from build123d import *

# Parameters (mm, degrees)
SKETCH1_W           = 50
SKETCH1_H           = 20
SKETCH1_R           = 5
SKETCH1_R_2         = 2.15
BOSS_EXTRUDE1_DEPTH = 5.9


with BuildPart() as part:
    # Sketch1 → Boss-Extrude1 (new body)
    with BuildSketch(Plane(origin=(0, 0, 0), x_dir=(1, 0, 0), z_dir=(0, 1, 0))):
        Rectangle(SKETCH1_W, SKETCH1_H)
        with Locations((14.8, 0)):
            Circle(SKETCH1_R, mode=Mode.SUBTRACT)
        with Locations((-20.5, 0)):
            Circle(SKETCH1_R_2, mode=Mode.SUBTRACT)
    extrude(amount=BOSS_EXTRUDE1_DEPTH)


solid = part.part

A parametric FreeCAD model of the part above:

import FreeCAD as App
import Part
import Sketcher
from FreeCAD import Vector

doc = App.newDocument("Part")
body = doc.addObject("PartDesign::Body", "Body")

# Sketch on XZ plane
sketch1 = body.newObject("Sketcher::SketchObject", "Sketch")
sketch1.AttachmentSupport = (doc.getObject("XZ_Plane"), [""])
sketch1.MapMode = "FlatFace"
sketch1.addGeometry([
    Part.LineSegment(Vector(-25, -10, 0), Vector(-25, 10, 0)),  # 0
    Part.LineSegment(Vector(-25, 10, 0), Vector(25, 10, 0)),  # 1
    Part.LineSegment(Vector(25, 10, 0), Vector(25, -10, 0)),  # 2
    Part.LineSegment(Vector(25, -10, 0), Vector(-25, -10, 0)),  # 3
    Part.Circle(Vector(-20.5, 0, 0), Vector(0, 0, 1), 2.15),  # 4
    Part.Circle(Vector(14.8, 0, 0), Vector(0, 0, 1), 5),  # 5
], False)
sketch1.addConstraint([
    Sketcher.Constraint("Coincident", 0, 2, 1, 1),
    Sketcher.Constraint("Coincident", 1, 2, 2, 1),
    Sketcher.Constraint("Coincident", 2, 2, 3, 1),
    Sketcher.Constraint("Coincident", 3, 2, 0, 1),
    Sketcher.Constraint("Vertical", 0),
    Sketcher.Constraint("Horizontal", 1),
    Sketcher.Constraint("Vertical", 2),
    Sketcher.Constraint("Horizontal", 3),
    Sketcher.Constraint("Symmetric", 0, 2, 2, 2, -1, 1),
    Sketcher.Constraint("PointOnObject", 4, 3, -1),
    Sketcher.Constraint("PointOnObject", 5, 3, -1),
    Sketcher.Constraint("Diameter", 5, 10.0),
    Sketcher.Constraint("Diameter", 4, 4.3),
    Sketcher.Constraint("DistanceX", 1, 1, 1, 2, 50.0),
    Sketcher.Constraint("DistanceY", 0, 1, 0, 2, 20.0),
    Sketcher.Constraint("DistanceX", 4, 3, -1, 1, 20.5),
    Sketcher.Constraint("DistanceX", -1, 1, 5, 3, 14.8),
])
pad1 = body.newObject("PartDesign::Pad", "Pad")
pad1.Profile = sketch1
pad1.Length = 5.9
pad1.Reversed = True

doc.recompute()
